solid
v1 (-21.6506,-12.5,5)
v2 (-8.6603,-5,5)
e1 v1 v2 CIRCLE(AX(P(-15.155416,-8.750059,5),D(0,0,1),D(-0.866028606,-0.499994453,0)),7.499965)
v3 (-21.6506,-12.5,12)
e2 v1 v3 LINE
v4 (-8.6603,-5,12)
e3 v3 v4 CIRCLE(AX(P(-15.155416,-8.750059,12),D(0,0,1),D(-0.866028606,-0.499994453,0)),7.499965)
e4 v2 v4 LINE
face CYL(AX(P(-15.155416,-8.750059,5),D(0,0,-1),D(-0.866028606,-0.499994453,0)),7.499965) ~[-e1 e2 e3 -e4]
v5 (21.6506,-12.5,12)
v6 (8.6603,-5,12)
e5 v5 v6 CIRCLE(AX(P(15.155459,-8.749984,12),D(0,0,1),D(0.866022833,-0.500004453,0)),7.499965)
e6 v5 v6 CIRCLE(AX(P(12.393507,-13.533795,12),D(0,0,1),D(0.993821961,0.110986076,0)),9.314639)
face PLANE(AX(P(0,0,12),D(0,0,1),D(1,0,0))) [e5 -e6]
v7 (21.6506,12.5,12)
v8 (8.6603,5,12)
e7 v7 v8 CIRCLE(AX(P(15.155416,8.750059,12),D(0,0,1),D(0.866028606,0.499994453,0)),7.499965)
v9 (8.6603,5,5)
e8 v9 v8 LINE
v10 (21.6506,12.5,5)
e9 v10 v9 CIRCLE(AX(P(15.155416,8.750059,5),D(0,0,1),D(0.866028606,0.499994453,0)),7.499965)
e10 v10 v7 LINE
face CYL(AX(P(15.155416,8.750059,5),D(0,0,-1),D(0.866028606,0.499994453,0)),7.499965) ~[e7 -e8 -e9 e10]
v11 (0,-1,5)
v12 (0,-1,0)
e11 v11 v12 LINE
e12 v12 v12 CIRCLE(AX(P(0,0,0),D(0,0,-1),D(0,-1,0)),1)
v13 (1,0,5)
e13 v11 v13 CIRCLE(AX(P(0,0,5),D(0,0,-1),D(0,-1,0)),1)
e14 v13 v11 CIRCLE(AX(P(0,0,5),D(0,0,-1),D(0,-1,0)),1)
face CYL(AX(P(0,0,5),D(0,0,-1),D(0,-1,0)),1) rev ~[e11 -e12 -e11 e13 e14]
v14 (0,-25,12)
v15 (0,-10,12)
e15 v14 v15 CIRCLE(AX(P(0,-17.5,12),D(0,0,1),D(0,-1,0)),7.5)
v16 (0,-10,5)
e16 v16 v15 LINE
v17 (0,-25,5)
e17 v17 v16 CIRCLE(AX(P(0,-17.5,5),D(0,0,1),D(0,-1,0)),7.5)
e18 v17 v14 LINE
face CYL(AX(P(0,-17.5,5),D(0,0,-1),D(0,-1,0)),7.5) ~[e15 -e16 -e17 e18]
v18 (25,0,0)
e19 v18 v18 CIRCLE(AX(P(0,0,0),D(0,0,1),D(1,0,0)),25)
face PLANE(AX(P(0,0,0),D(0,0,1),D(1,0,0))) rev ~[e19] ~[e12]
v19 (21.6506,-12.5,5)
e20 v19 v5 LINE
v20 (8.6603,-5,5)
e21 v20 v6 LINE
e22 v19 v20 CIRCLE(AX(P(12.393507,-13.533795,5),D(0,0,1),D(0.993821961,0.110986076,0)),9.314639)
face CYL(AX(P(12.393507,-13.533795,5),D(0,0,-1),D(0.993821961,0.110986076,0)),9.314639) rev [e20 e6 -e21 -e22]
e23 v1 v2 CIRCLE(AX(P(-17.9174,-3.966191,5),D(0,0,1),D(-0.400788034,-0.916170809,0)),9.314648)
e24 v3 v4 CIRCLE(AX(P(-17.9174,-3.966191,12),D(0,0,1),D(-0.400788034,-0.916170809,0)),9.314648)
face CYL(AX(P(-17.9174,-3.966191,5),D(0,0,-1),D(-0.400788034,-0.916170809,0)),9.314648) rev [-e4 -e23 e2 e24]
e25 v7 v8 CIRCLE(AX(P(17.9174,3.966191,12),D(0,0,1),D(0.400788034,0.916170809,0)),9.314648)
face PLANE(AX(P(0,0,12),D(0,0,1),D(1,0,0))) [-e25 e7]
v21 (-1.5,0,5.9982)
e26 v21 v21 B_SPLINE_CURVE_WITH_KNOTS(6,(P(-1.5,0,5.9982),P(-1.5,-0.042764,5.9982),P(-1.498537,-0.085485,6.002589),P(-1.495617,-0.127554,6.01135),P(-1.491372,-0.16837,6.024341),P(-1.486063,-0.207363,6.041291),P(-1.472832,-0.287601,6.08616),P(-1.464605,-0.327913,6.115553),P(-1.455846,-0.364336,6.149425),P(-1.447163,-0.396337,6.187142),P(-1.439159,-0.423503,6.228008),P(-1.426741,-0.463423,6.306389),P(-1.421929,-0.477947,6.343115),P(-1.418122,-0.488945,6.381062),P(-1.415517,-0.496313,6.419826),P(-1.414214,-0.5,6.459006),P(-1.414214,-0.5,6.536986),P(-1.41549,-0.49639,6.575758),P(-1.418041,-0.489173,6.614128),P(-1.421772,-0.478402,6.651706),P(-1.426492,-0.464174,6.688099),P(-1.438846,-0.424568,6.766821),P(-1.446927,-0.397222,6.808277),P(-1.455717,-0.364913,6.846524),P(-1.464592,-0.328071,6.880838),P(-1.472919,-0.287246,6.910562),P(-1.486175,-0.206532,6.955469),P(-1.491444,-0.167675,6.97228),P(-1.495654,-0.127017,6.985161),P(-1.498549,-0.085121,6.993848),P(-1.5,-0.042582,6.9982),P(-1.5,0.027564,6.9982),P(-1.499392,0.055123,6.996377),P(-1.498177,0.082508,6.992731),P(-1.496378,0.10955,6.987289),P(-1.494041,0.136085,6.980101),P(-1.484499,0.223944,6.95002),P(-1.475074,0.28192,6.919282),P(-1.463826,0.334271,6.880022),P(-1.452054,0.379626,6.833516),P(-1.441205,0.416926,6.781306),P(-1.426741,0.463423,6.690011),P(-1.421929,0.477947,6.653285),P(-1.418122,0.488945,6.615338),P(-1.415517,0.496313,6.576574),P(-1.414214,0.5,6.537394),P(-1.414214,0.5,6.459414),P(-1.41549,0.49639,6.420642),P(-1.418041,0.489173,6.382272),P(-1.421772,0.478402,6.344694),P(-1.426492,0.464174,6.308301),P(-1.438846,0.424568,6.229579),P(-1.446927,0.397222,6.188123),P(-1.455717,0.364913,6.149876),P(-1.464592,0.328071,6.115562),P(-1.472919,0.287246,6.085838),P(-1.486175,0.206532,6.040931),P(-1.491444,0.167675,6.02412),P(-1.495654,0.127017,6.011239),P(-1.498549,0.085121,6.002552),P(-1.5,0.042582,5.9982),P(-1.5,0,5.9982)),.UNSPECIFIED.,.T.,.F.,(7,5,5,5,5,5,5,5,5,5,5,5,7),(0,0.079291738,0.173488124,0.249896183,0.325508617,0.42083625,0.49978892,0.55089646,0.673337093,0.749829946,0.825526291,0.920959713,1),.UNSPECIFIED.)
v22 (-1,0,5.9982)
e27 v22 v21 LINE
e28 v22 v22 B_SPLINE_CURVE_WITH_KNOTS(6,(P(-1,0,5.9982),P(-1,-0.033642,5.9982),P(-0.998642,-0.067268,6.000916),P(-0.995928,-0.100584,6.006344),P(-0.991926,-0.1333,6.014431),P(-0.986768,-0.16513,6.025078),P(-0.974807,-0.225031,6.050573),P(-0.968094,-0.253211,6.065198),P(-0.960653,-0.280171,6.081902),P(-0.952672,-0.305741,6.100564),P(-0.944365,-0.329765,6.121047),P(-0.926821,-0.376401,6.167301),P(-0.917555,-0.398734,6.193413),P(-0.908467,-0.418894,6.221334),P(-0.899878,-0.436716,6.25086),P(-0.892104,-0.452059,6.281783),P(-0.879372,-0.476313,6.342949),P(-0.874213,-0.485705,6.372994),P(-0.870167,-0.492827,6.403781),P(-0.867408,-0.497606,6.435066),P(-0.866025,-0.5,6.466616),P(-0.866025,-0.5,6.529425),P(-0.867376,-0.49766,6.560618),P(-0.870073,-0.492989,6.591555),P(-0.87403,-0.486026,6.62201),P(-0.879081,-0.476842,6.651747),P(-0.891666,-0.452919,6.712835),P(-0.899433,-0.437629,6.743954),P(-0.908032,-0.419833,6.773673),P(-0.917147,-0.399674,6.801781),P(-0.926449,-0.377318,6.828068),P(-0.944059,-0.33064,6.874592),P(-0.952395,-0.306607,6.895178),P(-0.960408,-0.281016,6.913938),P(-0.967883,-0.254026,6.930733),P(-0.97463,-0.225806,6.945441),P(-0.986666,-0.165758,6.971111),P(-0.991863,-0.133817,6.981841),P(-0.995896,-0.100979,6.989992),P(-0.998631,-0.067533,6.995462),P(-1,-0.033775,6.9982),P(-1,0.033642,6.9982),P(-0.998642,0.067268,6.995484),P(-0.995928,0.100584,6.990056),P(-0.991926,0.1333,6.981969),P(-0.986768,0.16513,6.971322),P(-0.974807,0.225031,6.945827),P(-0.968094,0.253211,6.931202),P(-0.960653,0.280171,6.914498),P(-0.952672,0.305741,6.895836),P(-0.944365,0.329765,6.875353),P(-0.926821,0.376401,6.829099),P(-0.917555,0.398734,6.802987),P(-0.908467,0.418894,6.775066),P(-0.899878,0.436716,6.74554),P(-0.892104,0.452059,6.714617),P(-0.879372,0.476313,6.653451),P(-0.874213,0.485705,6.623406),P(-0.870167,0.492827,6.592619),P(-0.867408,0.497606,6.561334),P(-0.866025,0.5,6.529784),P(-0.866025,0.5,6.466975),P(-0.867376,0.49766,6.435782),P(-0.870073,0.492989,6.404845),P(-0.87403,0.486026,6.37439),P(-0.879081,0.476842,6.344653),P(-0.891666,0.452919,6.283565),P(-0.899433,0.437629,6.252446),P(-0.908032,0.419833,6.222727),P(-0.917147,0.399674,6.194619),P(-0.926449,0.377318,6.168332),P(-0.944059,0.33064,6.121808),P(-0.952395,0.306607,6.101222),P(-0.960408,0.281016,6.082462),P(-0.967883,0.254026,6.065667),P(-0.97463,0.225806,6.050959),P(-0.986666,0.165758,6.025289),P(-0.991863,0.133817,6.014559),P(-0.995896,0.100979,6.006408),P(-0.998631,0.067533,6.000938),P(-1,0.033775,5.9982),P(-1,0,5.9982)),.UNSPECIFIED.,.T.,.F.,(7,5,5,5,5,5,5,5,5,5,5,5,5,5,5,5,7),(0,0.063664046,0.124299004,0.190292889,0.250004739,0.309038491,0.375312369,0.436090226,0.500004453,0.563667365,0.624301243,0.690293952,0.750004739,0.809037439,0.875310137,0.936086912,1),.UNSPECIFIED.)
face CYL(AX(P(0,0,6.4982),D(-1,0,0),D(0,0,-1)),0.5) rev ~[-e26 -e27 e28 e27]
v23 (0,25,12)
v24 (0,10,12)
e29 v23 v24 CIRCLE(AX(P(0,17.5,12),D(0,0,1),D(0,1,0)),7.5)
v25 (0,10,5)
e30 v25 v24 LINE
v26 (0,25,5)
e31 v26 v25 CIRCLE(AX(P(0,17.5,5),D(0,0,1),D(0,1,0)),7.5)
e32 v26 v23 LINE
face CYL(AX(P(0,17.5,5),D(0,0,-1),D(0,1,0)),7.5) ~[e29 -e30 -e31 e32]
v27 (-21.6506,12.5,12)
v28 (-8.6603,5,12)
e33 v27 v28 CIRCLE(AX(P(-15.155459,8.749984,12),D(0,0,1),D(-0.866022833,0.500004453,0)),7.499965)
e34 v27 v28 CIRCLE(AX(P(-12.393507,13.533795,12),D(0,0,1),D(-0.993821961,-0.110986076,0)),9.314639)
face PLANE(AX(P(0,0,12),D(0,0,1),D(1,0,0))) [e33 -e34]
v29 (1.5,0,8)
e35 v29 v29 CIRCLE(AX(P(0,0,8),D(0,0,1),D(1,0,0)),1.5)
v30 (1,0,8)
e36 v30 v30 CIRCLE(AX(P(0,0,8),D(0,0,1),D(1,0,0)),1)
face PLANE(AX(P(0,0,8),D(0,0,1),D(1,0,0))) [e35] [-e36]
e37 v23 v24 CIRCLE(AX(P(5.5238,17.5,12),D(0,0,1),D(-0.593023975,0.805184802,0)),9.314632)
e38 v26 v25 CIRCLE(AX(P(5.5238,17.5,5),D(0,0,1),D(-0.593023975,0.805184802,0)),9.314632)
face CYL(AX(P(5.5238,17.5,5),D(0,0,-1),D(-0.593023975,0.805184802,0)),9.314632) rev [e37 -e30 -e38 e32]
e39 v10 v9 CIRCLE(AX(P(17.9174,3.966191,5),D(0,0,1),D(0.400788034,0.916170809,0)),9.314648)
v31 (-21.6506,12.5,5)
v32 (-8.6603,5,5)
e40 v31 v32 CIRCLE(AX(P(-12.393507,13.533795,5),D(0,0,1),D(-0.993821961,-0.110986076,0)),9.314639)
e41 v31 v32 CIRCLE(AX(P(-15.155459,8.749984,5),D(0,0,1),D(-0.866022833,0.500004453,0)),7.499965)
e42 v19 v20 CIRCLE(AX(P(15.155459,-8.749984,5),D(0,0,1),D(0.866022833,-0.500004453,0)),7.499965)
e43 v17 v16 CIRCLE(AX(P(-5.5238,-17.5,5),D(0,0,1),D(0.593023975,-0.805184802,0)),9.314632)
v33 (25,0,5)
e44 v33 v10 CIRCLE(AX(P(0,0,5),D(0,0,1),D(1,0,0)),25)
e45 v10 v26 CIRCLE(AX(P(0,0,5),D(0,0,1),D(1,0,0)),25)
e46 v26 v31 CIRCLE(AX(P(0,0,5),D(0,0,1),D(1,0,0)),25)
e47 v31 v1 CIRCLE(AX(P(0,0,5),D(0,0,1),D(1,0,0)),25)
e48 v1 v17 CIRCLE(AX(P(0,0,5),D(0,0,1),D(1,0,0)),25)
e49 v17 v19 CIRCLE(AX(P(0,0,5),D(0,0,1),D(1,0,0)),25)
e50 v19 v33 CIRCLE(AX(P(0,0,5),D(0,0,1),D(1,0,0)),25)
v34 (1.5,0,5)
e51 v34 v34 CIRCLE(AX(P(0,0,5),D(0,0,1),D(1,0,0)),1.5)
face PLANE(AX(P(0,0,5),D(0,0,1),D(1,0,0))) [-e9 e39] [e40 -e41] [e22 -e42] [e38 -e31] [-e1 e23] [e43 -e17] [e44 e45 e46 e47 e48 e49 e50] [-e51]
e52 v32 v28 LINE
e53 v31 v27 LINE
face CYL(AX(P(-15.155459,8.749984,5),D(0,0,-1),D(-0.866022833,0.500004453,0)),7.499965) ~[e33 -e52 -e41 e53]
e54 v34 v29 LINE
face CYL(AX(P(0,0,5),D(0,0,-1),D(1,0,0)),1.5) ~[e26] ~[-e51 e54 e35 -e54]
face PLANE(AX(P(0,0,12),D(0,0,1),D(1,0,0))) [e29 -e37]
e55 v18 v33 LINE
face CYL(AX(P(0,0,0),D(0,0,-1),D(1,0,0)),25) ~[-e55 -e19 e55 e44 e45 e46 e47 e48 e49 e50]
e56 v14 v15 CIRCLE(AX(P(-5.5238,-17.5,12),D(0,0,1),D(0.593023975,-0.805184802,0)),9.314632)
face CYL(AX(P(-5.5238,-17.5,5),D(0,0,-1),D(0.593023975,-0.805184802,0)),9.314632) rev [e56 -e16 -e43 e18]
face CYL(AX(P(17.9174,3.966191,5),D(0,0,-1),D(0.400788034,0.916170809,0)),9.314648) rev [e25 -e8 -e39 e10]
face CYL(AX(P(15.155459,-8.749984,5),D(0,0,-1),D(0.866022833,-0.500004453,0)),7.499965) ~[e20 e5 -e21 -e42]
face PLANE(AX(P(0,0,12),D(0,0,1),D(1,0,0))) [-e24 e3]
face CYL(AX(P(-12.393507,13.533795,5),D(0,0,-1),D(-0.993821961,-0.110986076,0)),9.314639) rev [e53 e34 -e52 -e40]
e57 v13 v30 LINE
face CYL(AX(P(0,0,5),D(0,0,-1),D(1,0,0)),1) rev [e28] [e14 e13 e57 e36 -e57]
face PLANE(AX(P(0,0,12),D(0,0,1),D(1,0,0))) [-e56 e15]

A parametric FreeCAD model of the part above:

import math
import FreeCAD as App
import Part
import Sketcher

V = App.Vector

doc = App.newDocument("Part")
body = doc.addObject("PartDesign::Body", "Body")

sketch1 = doc.addObject("Sketcher::SketchObject", "Sketch")
body.addObject(sketch1)
sketch1.AttachmentSupport = (doc.XY_Plane, [""])
sketch1.MapMode = "FlatFace"
sketch1.addGeometry(Part.Circle(V(0, 0, 0), V(0, 0, 1), 25), False)
sketch1.addConstraint([
    Sketcher.Constraint("Coincident", 0, 3, -1, 1),
    Sketcher.Constraint("Diameter", 0, 50.0),
])
pad1 = doc.addObject("PartDesign::Pad", "Pad")
body.addObject(pad1)
pad1.Profile = sketch1
pad1.Length = 5

sketch2 = doc.addObject("Sketcher::SketchObject", "Sketch001")
body.addObject(sketch2)
sketch2.AttachmentSupport = (doc.XY_Plane, [""])
sketch2.MapMode = "FlatFace"
sketch2.AttachmentOffset = App.Placement(V(0, 0, 5), App.Rotation())
sketch2.addGeometry([
    Part.ArcOfCircle(Part.Circle(V(15.1554, 8.75, 0), V(0, 0, 1), 7.500008), math.radians(29.999964), math.radians(210.000346)),
    Part.ArcOfCircle(Part.Circle(V(17.9174, 3.9662, 0), V(0, 0, 1), 9.31464), math.radians(66.372524), math.radians(173.627814)),
    Part.ArcOfCircle(Part.Circle(V(15.1554, -8.75, 0), V(0, 0, 1), 7.500008), math.radians(-29.999964), math.radians(149.999654)),
    Part.ArcOfCircle(Part.Circle(V(12.3935, -13.5338, 0), V(0, 0, 1), 9.314647), math.radians(6.372186), math.radians(113.627476)),
    Part.ArcOfCircle(Part.Circle(V(0, 17.5, 0), V(0, 0, 1), 7.5), math.radians(90), math.radians(270)),
    Part.ArcOfCircle(Part.Circle(V(5.5238, 17.5, 0), V(0, 0, 1), 9.314632), math.radians(126.371894), math.radians(233.628106)),
    Part.ArcOfCircle(Part.Circle(V(0, -17.5, 0), V(0, 0, 1), 7.5), math.radians(-90), math.radians(90)),
    Part.ArcOfCircle(Part.Circle(V(-5.5238, -17.5, 0), V(0, 0, 1), 9.314632), math.radians(-53.628106), math.radians(53.628106)),
    Part.ArcOfCircle(Part.Circle(V(-15.1554, 8.75, 0), V(0, 0, 1), 7.500008), math.radians(150.000036), math.radians(329.999654)),
    Part.ArcOfCircle(Part.Circle(V(-12.3935, 13.5338, 0), V(0, 0, 1), 9.314647), math.radians(-173.627814), math.radians(-66.372524)),
    Part.ArcOfCircle(Part.Circle(V(-15.1554, -8.75, 0), V(0, 0, 1), 7.500008), math.radians(-150.000036), math.radians(30.000346)),
    Part.ArcOfCircle(Part.Circle(V(-17.9174, -3.9662, 0), V(0, 0, 1), 9.31464), math.radians(-113.627476), math.radians(-6.372186)),
], False)
sketch2.addConstraint([
    Sketcher.Constraint("Coincident", 0, 1, 1, 1),
    Sketcher.Constraint("Coincident", 1, 2, 0, 2),
    Sketcher.Constraint("Coincident", 2, 1, 3, 1),
    Sketcher.Constraint("Coincident", 3, 2, 2, 2),
    Sketcher.Constraint("Coincident", 4, 1, 5, 1),
    Sketcher.Constraint("Coincident", 5, 2, 4, 2),
    Sketcher.Constraint("Coincident", 6, 1, 7, 1),
    Sketcher.Constraint("Coincident", 7, 2, 6, 2),
    Sketcher.Constraint("Coincident", 8, 1, 9, 1),
    Sketcher.Constraint("Coincident", 9, 2, 8, 2),
    Sketcher.Constraint("Coincident", 10, 1, 11, 1),
    Sketcher.Constraint("Coincident", 11, 2, 10, 2),
    Sketcher.Constraint("Equal", 0, 2),
    Sketcher.Constraint("Equal", 1, 3),
    Sketcher.Constraint("Equal", 2, 4),
    Sketcher.Constraint("Equal", 3, 5),
    Sketcher.Constraint("Equal", 4, 6),
    Sketcher.Constraint("Equal", 5, 7),
    Sketcher.Constraint("Equal", 6, 8),
    Sketcher.Constraint("Equal", 7, 9),
    Sketcher.Constraint("Equal", 8, 10),
    Sketcher.Constraint("Equal", 9, 11),
    Sketcher.Constraint("Symmetric", 4, 3, 6, 3, -1, 1),
    Sketcher.Constraint("Symmetric", 5, 3, 7, 3, -1, 1),
    Sketcher.Constraint("Symmetric", 2, 3, 8, 3, -1, 1),
    Sketcher.Constraint("Symmetric", 3, 3, 9, 3, -1, 1),
    Sketcher.Constraint("Symmetric", 0, 3, 10, 3, -1, 1),
    Sketcher.Constraint("Symmetric", 1, 3, 11, 3, -1, 1),
    Sketcher.Constraint("Symmetric", 0, 3, 8, 3, -2),
    Sketcher.Constraint("PointOnObject", 4, 3, -2),
    Sketcher.Constraint("PointOnObject", 4, 1, -2),
    Sketcher.Constraint("PointOnObject", 5, 2, -2),
    Sketcher.Constraint("Horizontal", 0, 1, 8, 1),
    Sketcher.Constraint("Horizontal", 1, 2, 9, 2),
    Sketcher.Constraint("DistanceY", 1, 2, 4, 1, 20.0),
    Sketcher.Constraint("Radius", 0, 7.5),
    Sketcher.Constraint("DistanceY", -1, 1, 1, 2, 5.0),
    Sketcher.Constraint("DistanceY", 0, 1, 5, 3, 5.0),
    Sketcher.Constraint("Radius", 1, 9.3146),
    Sketcher.Constraint("DistanceY", 2, 3, 0, 3, 17.5),
    Sketcher.Constraint("DistanceX", 9, 3, 0, 3, 27.549),
])
pad2 = doc.addObject("PartDesign::Pad", "Pad001")
body.addObject(pad2)
pad2.Profile = sketch2
pad2.Length = 7

sketch3 = doc.addObject("Sketcher::SketchObject", "Sketch002")
body.addObject(sketch3)
sketch3.AttachmentSupport = (doc.XY_Plane, [""])
sketch3.MapMode = "FlatFace"
sketch3.AttachmentOffset = App.Placement(V(0, 0, 5), App.Rotation())
sketch3.addGeometry(Part.Circle(V(0, 0, 0), V(0, 0, 1), 1), False)
sketch3.addConstraint([
    Sketcher.Constraint("Coincident", 0, 3, -1, 1),
    Sketcher.Constraint("Diameter", 0, 2.0),
])
doc.recompute()
hole = doc.addObject("PartDesign::Hole", "Hole")
body.addObject(hole)
hole.Profile = sketch3
hole.ThreadType = "None"
hole.Diameter = 2
hole.DepthType = "Dimension"
hole.Depth = 8.8
hole.DrillPoint = "Angled"
hole.DrillPointAngle = 118

sketch4 = doc.addObject("Sketcher::SketchObject", "Sketch003")
body.addObject(sketch4)
sketch4.AttachmentSupport = (doc.XY_Plane, [""])
sketch4.MapMode = "FlatFace"
sketch4.AttachmentOffset = App.Placement(V(0, 0, 5), App.Rotation())
sketch4.addGeometry([
    Part.Circle(V(0, 0, 0), V(0, 0, 1), 1.5),
    Part.Circle(V(0, 0, 0), V(0, 0, 1), 1),
], False)
sketch4.addConstraint([
    Sketcher.Constraint("Coincident", 0, 3, -1, 1),
    Sketcher.Constraint("Coincident", 1, 3, -1, 1),
    Sketcher.Constraint("Diameter", 0, 3.0),
    Sketcher.Constraint("Diameter", 1, 2.0),
])
pad3 = doc.addObject("PartDesign::Pad", "Pad002")
body.addObject(pad3)
pad3.Profile = sketch4
pad3.Length = 3

sketch5 = doc.addObject("Sketcher::SketchObject", "Sketch004")
body.addObject(sketch5)
sketch5.AttachmentSupport = (doc.YZ_Plane, [""])
sketch5.MapMode = "FlatFace"
sketch5.addGeometry(Part.Circle(V(0, 6.4982, 0), V(0, 0, 1), 0.5), False)
sketch5.addConstraint([
    Sketcher.Constraint("PointOnObject", 0, 3, -2),
    Sketcher.Constraint("Diameter", 0, 1.0),
    Sketcher.Constraint("DistanceY", -1, 1, 0, 3, 6.4982),
])
doc.recompute()
hole2 = doc.addObject("PartDesign::Hole", "Hole001")
body.addObject(hole2)
hole2.Profile = sketch5
hole2.ThreadType = "None"
hole2.Diameter = 1
hole2.DepthType = "Dimension"
hole2.Depth = 2
hole2.DrillPoint = "Angled"
hole2.DrillPointAngle = 118

doc.recompute()
